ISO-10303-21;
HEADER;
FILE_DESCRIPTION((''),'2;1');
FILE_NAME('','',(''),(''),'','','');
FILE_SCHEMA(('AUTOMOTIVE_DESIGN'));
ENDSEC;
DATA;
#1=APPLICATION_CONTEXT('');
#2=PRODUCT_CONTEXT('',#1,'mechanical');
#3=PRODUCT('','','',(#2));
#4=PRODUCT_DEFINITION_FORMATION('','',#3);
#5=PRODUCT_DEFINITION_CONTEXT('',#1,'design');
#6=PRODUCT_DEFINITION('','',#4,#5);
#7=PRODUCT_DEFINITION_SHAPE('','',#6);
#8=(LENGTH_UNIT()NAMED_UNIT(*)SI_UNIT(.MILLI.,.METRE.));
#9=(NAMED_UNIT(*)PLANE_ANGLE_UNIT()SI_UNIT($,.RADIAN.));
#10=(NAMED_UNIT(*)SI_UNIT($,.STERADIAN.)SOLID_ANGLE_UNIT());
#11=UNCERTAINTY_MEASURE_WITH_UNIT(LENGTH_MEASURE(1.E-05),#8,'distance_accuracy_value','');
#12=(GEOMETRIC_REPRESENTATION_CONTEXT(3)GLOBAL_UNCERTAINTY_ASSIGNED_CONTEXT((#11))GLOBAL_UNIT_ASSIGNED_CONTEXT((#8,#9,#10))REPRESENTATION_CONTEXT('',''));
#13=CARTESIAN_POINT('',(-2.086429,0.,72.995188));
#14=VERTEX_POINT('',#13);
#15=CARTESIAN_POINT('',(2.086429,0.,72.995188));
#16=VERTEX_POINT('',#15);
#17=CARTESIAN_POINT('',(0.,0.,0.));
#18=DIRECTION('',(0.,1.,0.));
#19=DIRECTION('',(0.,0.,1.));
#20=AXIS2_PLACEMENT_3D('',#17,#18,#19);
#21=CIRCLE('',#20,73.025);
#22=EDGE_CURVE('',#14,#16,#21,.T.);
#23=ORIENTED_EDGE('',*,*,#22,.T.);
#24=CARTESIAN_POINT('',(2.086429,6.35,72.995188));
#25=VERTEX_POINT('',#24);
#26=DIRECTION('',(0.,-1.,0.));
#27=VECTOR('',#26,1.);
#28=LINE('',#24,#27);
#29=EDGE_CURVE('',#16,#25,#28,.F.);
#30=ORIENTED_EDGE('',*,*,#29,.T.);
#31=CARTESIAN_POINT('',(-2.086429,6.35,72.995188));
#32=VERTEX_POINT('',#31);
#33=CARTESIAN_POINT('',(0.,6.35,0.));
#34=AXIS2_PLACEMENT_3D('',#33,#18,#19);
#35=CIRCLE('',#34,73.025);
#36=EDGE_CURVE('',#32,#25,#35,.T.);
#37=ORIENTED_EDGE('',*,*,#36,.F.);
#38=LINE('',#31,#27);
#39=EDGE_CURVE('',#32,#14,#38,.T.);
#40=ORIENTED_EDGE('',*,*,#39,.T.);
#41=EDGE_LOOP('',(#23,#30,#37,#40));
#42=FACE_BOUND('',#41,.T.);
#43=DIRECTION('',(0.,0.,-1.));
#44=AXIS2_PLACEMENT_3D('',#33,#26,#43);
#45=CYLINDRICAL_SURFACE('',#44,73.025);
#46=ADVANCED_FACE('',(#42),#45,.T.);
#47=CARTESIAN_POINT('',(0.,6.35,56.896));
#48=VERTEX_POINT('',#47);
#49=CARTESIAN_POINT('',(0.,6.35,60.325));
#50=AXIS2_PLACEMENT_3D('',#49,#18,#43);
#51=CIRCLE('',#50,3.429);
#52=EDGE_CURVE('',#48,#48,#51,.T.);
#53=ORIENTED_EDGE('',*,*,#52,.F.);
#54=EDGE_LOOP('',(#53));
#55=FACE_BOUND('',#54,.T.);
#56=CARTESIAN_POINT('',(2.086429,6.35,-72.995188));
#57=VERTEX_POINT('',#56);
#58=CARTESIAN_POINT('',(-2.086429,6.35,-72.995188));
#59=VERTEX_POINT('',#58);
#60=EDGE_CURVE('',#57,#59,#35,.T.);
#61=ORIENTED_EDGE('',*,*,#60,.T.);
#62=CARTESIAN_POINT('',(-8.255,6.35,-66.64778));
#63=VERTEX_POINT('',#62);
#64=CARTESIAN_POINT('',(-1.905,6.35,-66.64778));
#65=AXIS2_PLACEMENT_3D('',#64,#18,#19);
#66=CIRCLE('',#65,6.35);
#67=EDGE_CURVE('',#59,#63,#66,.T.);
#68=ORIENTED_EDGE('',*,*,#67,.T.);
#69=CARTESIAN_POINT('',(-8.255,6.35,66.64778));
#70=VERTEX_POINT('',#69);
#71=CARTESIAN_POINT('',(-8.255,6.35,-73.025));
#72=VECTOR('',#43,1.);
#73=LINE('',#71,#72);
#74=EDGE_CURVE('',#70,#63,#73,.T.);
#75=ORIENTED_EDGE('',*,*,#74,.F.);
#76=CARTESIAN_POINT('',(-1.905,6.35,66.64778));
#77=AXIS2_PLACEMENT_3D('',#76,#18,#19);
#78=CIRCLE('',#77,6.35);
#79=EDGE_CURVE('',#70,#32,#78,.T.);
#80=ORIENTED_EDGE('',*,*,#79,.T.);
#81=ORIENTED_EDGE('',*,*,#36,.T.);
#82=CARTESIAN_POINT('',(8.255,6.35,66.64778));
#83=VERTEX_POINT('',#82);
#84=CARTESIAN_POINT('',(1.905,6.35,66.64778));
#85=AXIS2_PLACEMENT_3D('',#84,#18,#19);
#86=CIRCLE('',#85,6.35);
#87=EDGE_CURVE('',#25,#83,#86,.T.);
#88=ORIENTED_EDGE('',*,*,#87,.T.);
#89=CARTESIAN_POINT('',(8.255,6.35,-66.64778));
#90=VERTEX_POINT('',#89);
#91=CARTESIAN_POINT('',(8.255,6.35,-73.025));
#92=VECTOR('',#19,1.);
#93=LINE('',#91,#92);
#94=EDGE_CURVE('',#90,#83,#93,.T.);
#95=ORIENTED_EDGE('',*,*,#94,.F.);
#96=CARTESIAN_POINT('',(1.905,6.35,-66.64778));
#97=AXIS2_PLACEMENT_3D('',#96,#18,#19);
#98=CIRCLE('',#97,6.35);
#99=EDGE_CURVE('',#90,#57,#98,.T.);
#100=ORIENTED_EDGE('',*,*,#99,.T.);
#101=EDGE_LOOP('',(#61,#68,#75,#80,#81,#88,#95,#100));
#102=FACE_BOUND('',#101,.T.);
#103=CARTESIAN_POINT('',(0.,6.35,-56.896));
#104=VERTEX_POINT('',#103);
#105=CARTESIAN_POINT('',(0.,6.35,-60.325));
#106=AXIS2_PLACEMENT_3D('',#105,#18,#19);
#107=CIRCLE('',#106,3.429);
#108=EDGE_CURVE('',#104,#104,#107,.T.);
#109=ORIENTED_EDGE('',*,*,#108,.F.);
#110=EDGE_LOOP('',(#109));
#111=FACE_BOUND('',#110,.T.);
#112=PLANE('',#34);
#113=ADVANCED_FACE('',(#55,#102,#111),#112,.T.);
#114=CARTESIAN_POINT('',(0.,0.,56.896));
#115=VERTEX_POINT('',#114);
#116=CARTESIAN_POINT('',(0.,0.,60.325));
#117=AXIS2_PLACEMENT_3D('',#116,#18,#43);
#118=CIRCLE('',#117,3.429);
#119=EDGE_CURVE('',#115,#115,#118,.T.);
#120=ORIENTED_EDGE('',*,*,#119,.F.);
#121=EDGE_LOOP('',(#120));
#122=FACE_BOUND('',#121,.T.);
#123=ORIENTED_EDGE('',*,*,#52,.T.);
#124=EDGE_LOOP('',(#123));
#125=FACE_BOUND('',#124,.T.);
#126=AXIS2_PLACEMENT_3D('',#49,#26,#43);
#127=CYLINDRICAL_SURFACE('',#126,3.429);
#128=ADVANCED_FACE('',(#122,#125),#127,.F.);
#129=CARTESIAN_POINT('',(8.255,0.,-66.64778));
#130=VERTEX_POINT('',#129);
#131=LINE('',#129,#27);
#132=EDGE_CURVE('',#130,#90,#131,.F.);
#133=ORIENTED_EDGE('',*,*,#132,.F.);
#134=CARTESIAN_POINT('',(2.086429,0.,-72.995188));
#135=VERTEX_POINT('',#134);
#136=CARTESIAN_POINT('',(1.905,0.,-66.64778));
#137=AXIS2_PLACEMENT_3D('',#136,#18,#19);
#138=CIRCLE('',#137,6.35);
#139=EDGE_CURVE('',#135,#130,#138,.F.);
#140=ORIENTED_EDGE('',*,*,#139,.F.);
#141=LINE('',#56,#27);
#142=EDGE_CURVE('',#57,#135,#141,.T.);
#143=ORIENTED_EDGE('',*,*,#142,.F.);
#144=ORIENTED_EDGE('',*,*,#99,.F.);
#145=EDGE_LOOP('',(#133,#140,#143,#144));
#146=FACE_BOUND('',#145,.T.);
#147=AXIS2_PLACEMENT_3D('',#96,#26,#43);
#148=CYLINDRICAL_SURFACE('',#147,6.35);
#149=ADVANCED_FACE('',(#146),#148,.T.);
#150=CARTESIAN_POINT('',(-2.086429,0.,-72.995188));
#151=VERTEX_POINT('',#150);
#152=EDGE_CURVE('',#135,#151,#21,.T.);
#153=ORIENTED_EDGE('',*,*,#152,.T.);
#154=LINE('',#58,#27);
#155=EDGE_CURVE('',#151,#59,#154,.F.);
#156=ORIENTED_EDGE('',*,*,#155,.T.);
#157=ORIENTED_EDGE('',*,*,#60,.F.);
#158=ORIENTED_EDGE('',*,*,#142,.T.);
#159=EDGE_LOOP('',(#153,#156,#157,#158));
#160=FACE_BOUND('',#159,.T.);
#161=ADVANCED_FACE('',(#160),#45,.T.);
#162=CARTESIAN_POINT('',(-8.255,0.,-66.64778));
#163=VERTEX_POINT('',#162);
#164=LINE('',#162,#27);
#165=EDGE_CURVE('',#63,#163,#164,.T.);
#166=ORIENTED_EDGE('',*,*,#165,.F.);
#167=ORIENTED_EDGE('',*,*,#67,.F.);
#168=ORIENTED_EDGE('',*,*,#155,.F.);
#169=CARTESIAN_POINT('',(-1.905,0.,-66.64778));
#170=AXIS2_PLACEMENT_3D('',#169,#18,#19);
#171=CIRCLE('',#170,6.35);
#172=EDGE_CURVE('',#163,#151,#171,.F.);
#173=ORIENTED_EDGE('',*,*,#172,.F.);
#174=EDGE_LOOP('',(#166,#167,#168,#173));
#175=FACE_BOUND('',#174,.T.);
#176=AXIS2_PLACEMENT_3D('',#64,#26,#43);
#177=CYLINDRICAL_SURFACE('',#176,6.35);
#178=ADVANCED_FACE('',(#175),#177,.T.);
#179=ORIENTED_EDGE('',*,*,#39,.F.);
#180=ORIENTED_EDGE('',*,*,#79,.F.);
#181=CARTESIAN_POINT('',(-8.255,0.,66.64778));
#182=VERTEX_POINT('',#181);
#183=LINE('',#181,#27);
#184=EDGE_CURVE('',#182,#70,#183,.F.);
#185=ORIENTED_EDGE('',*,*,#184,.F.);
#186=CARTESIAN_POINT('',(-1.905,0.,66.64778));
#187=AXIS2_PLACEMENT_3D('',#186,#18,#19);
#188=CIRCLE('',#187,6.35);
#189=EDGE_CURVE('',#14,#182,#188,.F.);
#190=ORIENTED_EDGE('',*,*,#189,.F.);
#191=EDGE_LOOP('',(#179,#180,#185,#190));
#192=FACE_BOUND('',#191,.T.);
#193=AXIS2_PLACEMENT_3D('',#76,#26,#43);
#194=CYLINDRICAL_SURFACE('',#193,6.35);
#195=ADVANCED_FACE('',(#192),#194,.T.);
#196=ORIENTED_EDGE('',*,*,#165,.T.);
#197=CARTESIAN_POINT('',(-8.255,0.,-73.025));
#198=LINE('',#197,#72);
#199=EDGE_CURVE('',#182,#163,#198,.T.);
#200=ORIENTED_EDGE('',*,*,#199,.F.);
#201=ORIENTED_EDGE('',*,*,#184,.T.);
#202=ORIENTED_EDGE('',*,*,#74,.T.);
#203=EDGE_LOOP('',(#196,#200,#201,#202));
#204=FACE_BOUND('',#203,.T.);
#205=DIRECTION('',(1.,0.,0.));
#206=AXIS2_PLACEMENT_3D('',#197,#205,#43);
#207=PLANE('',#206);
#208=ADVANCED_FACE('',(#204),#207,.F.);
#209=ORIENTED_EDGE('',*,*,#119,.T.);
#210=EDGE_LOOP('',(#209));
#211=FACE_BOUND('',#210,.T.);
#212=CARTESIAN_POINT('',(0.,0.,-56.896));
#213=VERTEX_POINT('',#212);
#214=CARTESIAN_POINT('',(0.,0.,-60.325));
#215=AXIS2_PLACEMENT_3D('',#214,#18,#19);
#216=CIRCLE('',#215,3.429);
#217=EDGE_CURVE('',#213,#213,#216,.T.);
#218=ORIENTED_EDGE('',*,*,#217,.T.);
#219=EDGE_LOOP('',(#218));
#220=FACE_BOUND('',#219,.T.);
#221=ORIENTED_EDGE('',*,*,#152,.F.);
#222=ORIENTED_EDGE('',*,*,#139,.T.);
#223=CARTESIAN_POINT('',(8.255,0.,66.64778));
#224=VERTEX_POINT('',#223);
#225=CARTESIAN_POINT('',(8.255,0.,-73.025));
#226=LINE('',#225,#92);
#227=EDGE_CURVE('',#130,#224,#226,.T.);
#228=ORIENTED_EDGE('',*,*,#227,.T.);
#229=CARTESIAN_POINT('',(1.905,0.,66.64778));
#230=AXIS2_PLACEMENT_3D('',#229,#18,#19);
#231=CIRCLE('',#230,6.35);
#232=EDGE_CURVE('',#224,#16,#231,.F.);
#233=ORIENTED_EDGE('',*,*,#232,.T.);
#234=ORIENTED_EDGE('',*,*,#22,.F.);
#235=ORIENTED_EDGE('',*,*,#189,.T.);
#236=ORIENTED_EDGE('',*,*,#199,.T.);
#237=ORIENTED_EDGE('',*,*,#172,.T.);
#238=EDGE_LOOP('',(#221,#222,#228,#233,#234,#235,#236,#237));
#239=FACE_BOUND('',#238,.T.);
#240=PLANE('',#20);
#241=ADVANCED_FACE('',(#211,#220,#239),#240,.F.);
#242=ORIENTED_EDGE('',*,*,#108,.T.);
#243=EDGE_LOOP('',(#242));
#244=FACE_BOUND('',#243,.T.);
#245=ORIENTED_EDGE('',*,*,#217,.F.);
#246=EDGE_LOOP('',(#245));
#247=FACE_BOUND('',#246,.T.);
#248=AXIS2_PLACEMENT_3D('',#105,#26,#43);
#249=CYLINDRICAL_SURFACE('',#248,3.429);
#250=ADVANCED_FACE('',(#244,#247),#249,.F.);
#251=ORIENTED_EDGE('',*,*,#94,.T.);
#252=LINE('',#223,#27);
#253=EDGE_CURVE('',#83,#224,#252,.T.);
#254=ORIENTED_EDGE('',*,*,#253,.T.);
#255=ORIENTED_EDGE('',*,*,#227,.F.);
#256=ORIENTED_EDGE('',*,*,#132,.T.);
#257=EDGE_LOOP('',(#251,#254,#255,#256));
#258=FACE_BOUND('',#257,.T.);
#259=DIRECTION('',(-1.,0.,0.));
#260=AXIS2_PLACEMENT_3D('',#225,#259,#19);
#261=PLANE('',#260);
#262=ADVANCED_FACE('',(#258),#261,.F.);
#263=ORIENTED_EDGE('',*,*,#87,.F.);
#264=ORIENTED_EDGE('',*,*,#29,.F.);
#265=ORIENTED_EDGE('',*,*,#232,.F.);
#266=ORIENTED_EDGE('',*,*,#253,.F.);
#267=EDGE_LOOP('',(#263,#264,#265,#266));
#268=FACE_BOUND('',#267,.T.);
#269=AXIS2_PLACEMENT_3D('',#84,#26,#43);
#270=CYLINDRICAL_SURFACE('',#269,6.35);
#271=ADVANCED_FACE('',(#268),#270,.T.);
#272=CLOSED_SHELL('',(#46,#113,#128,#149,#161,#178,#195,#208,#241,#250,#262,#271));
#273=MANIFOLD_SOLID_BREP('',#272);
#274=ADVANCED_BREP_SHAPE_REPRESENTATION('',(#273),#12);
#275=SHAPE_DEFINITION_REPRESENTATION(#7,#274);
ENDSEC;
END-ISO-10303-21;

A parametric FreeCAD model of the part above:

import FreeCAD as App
import Part
import Sketcher
Q = App.Units.Quantity


def edges_at(feature, points):
    """Names of the edges that pass closest to the given points."""
    edges = feature.Shape.Edges
    near = lambda p: min(range(len(edges)), key=lambda i: edges[i].distToShape(Part.Vertex(*p))[0])
    return sorted({f"Edge{near(p) + 1}" for p in points})


def add_polygon(sketch, points):
    """Adds a closed chain of lines whose ends are joined by coincident constraints."""
    first, n = sketch.GeometryCount, len(points)
    for a, b in zip(points, points[1:] + points[:1]):
        sketch.addGeometry(Part.LineSegment(App.Vector(*a, 0), App.Vector(*b, 0)), False)
    for i in range(n):
        sketch.addConstraint(Sketcher.Constraint("Coincident", first + i, 2, first + (i + 1) % n, 1))

doc = App.newDocument("Part")
params = doc.addObject("Spreadsheet::Sheet", "Params")
for row, (alias, value) in enumerate([
    ("sketch1_diameter", "5.75 in"),
    ("sketch1_diameter2", "0.27 in"),
    ("pad1_length", "0.25 in"),
    ("sketch2_width", "2.55 in"),
    ("sketch2_height", "5.75 in"),
    ("fillet_radius", "0.25 in"),
], start=1):
    params.set(f"A{row}", alias)
    params.set(f"B{row}", "=" + value)
    params.setAlias(f"B{row}", alias)

body = doc.addObject("PartDesign::Body", "Body")

sketch1 = body.newObject("Sketcher::SketchObject", "Sketch")
sketch1.AttachmentSupport = (doc.getObject("XZ_Plane"), [""])
sketch1.MapMode = "FlatFace"
sketch1.addGeometry([
    Part.Circle(App.Vector(0, 0, 0), App.Vector(0, 0, 1), 73),
    Part.Circle(App.Vector(0, -60.3, 0), App.Vector(0, 0, 1), 3.4),
    Part.Circle(App.Vector(0, 60.3, 0), App.Vector(0, 0, 1), 3.4),
], False)
sketch1.addConstraint([
    Sketcher.Constraint("Coincident", 0, 3, -1, 1),
    Sketcher.Constraint("Equal", 1, 2),
    Sketcher.Constraint("Symmetric", 1, 3, 2, 3, -1, 1),
    Sketcher.Constraint("PointOnObject", 1, 3, -2),
    Sketcher.Constraint("Diameter", 0, Q("5.75 in")),
    Sketcher.Constraint("Diameter", 1, Q("0.27 in")),
    Sketcher.Constraint("DistanceY", 1, 3, 2, 3, Q("4.75 in")),
])
sketch1.setExpression("Constraints[4]", "Params.sketch1_diameter")
sketch1.setExpression("Constraints[5]", "Params.sketch1_diameter2")
pad1 = body.newObject("PartDesign::Pad", "Pad")
pad1.Profile = sketch1
pad1.setExpression("Length", "Params.pad1_length")
pad1.Reversed = True

sketch2 = body.newObject("Sketcher::SketchObject", "Sketch001")
sketch2.AttachmentSupport = (doc.getObject("XZ_Plane"), [""])
sketch2.MapMode = "FlatFace"
sketch2.AttachmentOffset = App.Placement(App.Vector(0, 0, -0.25 * 25.4), App.Rotation())
add_polygon(sketch2, [(8, -73), (8, 73), (73, 73), (73, -73)])
add_polygon(sketch2, [(-73, -73), (-73, 73), (-8, 73), (-8, -73)])
sketch2.addConstraint([
    Sketcher.Constraint("Vertical", 0),
    Sketcher.Constraint("Horizontal", 1),
    Sketcher.Constraint("Vertical", 2),
    Sketcher.Constraint("Horizontal", 3),
    Sketcher.Constraint("Vertical", 4),
    Sketcher.Constraint("Horizontal", 5),
    Sketcher.Constraint("Vertical", 6),
    Sketcher.Constraint("Horizontal", 7),
    Sketcher.Constraint("Symmetric", 2, 2, 4, 2, -1, 1),
    Sketcher.Constraint("Symmetric", 0, 2, 6, 2, -1, 1),
    Sketcher.Constraint("Horizontal", 1, 2, 4, 2),
    Sketcher.Constraint("DistanceX", 1, 1, 1, 2, Q("2.55 in")),
    Sketcher.Constraint("DistanceY", 0, 1, 0, 2, Q("5.75 in")),
    Sketcher.Constraint("DistanceX", 4, 2, 0, 2, Q("3.2 in")),
])
sketch2.setExpression("Constraints[19]", "Params.sketch2_width")
sketch2.setExpression("Constraints[20]", "Params.sketch2_height")
pocket1 = body.newObject("PartDesign::Pocket", "Pocket")
pocket1.Profile = sketch2
pocket1.Type = "ThroughAll"
pocket1.Reversed = True
doc.recompute()

fillet = body.newObject("PartDesign::Fillet", "Fillet")
fillet.Base = (pocket1, edges_at(pocket1, [
    (-8.255, 3.175, -72.557),
    (-8.255, 3.175, 72.557),
    (8.255, 3.175, 72.557),
    (8.255, 3.175, -72.557),
]))
fillet.setExpression("Radius", "Params.fillet_radius")

doc.recompute()
